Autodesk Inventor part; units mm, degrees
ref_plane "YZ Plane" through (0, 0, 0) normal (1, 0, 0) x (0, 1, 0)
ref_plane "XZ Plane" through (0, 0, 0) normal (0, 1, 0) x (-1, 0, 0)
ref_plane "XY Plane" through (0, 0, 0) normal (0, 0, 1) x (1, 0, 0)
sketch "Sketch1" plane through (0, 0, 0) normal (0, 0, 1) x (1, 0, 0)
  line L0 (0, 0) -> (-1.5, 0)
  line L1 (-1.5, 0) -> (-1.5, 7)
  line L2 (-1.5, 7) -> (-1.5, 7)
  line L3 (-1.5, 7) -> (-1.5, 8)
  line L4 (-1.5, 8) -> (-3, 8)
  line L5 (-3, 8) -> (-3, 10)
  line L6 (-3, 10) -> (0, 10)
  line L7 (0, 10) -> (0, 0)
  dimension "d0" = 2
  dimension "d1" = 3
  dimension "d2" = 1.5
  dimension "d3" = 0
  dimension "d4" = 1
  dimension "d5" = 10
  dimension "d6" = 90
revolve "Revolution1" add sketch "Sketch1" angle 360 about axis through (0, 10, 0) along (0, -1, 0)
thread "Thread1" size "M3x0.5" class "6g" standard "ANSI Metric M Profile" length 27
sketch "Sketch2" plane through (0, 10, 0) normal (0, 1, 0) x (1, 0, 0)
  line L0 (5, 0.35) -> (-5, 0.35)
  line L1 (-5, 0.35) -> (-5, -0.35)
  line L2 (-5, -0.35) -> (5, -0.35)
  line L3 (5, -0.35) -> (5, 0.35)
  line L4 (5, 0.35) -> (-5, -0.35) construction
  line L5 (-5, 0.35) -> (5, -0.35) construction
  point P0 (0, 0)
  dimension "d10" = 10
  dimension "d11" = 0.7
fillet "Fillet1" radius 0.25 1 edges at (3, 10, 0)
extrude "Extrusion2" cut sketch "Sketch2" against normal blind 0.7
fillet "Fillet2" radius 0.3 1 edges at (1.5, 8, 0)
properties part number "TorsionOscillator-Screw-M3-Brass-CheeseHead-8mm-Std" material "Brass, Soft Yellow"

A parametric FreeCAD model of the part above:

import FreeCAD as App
import Part
import Sketcher


def edges_at(feature, points):
    """Names of the edges that pass closest to the given points."""
    edges = feature.Shape.Edges
    near = lambda p: min(range(len(edges)), key=lambda i: edges[i].distToShape(Part.Vertex(*p))[0])
    return sorted({f"Edge{near(p) + 1}" for p in points})


def add_polygon(sketch, points):
    """Adds a closed chain of lines whose ends are joined by coincident constraints."""
    first, n = sketch.GeometryCount, len(points)
    for a, b in zip(points, points[1:] + points[:1]):
        sketch.addGeometry(Part.LineSegment(App.Vector(*a, 0), App.Vector(*b, 0)), False)
    for i in range(n):
        sketch.addConstraint(Sketcher.Constraint("Coincident", first + i, 2, first + (i + 1) % n, 1))

doc = App.newDocument("Part")
body = doc.addObject("PartDesign::Body", "Body")

# Sketch on XY plane
sketch1 = body.newObject("Sketcher::SketchObject", "Sketch")
sketch1.AttachmentSupport = (doc.getObject("XY_Plane"), [""])
sketch1.MapMode = "FlatFace"
add_polygon(sketch1, [(-1.5, 0), (0, 0), (0, 10), (-3, 10), (-3, 8), (-1.5, 8)])  # lines 0-5
sketch1.addConstraint([
    Sketcher.Constraint("Horizontal", 0),
    Sketcher.Constraint("Vertical", 1),
    Sketcher.Constraint("Horizontal", 2),
    Sketcher.Constraint("Vertical", 3),
    Sketcher.Constraint("Horizontal", 4),
    Sketcher.Constraint("Vertical", 5),
    Sketcher.Constraint("Coincident", 0, 2, -1, 1),
    Sketcher.Constraint("Equal", 0, 4),
    Sketcher.Constraint("DistanceX", 2, 2, 2, 1, 3.0),
    Sketcher.Constraint("DistanceY", 1, 1, 1, 2, 10.0),
    Sketcher.Constraint("DistanceY", 3, 2, 3, 1, 2.0),
])
revolution = body.newObject("PartDesign::Revolution", "Revolution")
revolution.Profile = sketch1
revolution.ReferenceAxis = (sketch1, ["V_Axis"])
revolution.Angle = 360
doc.recompute()

fillet = body.newObject("PartDesign::Fillet", "Fillet")
fillet.Base = (revolution, edges_at(revolution, [(3, 10, 0)]))
fillet.Radius = 0.25

# Sketch on XZ plane
sketch2 = body.newObject("Sketcher::SketchObject", "Sketch001")
sketch2.AttachmentSupport = (doc.getObject("XZ_Plane"), [""])
sketch2.MapMode = "FlatFace"
sketch2.AttachmentOffset = App.Placement(App.Vector(0, 0, -10), App.Rotation())
add_polygon(sketch2, [(5, 0.3), (5, -0.3), (-5, -0.3), (-5, 0.3)])  # lines 0-3
sketch2.addConstraint([
    Sketcher.Constraint("Vertical", 0),
    Sketcher.Constraint("Horizontal", 1),
    Sketcher.Constraint("Vertical", 2),
    Sketcher.Constraint("Horizontal", 3),
    Sketcher.Constraint("Symmetric", 0, 2, 2, 2, -1, 1),
    Sketcher.Constraint("DistanceX", 1, 2, 1, 1, 10.0),
    Sketcher.Constraint("DistanceY", 0, 2, 0, 1, 0.7),
])
pocket1 = body.newObject("PartDesign::Pocket", "Pocket")
pocket1.Profile = sketch2
pocket1.Length = 0.7
pocket1.Reversed = True
doc.recompute()

fillet2 = body.newObject("PartDesign::Fillet", "Fillet001")
fillet2.Base = (pocket1, edges_at(pocket1, [(1.5, 8, 0)]))
fillet2.Radius = 0.3

doc.recompute()
